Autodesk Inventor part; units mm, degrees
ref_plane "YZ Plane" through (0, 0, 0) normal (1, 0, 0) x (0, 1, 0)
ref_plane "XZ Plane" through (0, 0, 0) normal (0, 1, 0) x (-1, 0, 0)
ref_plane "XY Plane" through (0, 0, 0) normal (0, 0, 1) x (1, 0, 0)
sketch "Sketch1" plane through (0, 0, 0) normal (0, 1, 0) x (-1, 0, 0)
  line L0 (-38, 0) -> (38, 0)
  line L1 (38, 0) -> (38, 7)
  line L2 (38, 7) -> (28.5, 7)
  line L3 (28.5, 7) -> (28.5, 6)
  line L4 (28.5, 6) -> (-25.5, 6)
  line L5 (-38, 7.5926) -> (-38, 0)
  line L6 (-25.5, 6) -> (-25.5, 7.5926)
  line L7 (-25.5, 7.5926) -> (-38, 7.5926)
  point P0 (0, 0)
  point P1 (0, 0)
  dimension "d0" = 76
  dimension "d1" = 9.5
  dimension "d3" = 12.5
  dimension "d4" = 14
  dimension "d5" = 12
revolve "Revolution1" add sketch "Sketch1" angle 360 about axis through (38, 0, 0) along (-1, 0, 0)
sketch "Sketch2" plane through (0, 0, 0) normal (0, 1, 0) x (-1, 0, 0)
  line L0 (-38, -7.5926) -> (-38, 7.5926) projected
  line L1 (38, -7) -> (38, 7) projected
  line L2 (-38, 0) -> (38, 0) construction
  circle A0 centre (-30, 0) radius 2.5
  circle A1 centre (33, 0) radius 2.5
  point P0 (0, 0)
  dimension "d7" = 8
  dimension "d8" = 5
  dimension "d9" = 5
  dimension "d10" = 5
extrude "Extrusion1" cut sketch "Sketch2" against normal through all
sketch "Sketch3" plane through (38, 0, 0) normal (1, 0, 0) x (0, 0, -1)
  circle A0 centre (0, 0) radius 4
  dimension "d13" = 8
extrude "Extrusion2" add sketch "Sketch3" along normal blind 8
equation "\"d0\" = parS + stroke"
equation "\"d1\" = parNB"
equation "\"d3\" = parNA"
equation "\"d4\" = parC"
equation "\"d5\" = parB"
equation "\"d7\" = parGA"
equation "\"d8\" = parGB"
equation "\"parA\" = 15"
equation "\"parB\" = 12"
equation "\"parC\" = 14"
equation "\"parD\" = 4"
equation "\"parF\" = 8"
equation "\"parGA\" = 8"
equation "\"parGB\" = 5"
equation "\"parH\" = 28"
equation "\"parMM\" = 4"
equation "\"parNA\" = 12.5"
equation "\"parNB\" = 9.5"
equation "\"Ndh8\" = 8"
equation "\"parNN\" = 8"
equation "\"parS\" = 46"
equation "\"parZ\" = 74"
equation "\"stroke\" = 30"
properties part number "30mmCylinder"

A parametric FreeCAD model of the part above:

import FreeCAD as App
import Part
import Sketcher

V = App.Vector
Q = App.Units.Quantity

doc = App.newDocument("Part")
body = doc.addObject("PartDesign::Body", "Body")

# Sketch on XZ plane
sketch1 = body.newObject("Sketcher::SketchObject", "Sketch")
sketch1.AttachmentSupport = (doc.getObject("XZ_Plane"), [""])
sketch1.MapMode = "FlatFace"
sketch1.addGeometry([
    Part.LineSegment(V(38, 7.5926, 0), V(38, 0, 0)),  # 0
    Part.LineSegment(V(38, 0, 0), V(-38, 0, 0)),  # 1
    Part.LineSegment(V(-38, 0, 0), V(-38, 7, 0)),  # 2
    Part.LineSegment(V(-38, 7, 0), V(-28.5, 7, 0)),  # 3
    Part.LineSegment(V(-28.5, 7, 0), V(-28.5, 6, 0)),  # 4
    Part.LineSegment(V(-28.5, 6, 0), V(25.5, 6, 0)),  # 5
    Part.LineSegment(V(25.5, 6, 0), V(25.5, 7.5926, 0)),  # 6
    Part.LineSegment(V(25.5, 7.5926, 0), V(38, 7.5926, 0)),  # 7
], False)
sketch1.addConstraint([
    Sketcher.Constraint("Coincident", 0, 2, 1, 1),
    Sketcher.Constraint("Coincident", 1, 2, 2, 1),
    Sketcher.Constraint("Coincident", 2, 2, 3, 1),
    Sketcher.Constraint("Coincident", 3, 2, 4, 1),
    Sketcher.Constraint("Coincident", 4, 2, 5, 1),
    Sketcher.Constraint("Coincident", 5, 2, 6, 1),
    Sketcher.Constraint("Coincident", 6, 2, 7, 1),
    Sketcher.Constraint("Coincident", 7, 2, 0, 1),
    Sketcher.Constraint("Vertical", 0),
    Sketcher.Constraint("Horizontal", 1),
    Sketcher.Constraint("Vertical", 2),
    Sketcher.Constraint("Horizontal", 3),
    Sketcher.Constraint("Vertical", 4),
    Sketcher.Constraint("Horizontal", 5),
    Sketcher.Constraint("Vertical", 6),
    Sketcher.Constraint("Horizontal", 7),
    Sketcher.Constraint("Symmetric", 0, 2, 1, 2, -1, 1),
    Sketcher.Constraint("DistanceX", 1, 2, 1, 1, Q("76 mm")),
    Sketcher.Constraint("DistanceX", 3, 1, 3, 2, Q("9.5 mm")),
    Sketcher.Constraint("DistanceX", 7, 1, 7, 2, Q("12.5 mm")),
    Sketcher.Constraint("DistanceY", 2, 1, 2, 2, Q("7 mm")),
    Sketcher.Constraint("DistanceY", 4, 2, 4, 1, Q("1 mm")),
    Sketcher.Constraint("DistanceY", 0, 2, 0, 1, Q("7.5926 mm")),
])
revolution = body.newObject("PartDesign::Revolution", "Revolution")
revolution.Profile = sketch1
revolution.ReferenceAxis = (sketch1, ["H_Axis"])
revolution.Angle = 360

# Sketch on XZ plane
sketch2 = body.newObject("Sketcher::SketchObject", "Sketch001")
sketch2.AttachmentSupport = (doc.getObject("XZ_Plane"), [""])
sketch2.MapMode = "FlatFace"
sketch2.addGeometry([
    Part.Circle(V(30, 0, 0), V(0, 0, 1), 2.5),
    Part.Circle(V(-33, 0, 0), V(0, 0, 1), 2.5),
], False)
sketch2.addConstraint([
    Sketcher.Constraint("Equal", 0, 1),
    Sketcher.Constraint("PointOnObject", 0, 3, -1),
    Sketcher.Constraint("PointOnObject", 1, 3, -1),
    Sketcher.Constraint("Diameter", 0, Q("5 mm")),
    Sketcher.Constraint("DistanceX", -1, 1, 0, 3, Q("30 mm")),
    Sketcher.Constraint("DistanceX", 1, 3, -1, 1, Q("33 mm")),
])
pocket1 = body.newObject("PartDesign::Pocket", "Pocket")
pocket1.Profile = sketch2
pocket1.Type = "ThroughAll"
pocket1.Reversed = True

# Sketch on YZ plane
sketch3 = body.newObject("Sketcher::SketchObject", "Sketch002")
sketch3.AttachmentSupport = (doc.getObject("YZ_Plane"), [""])
sketch3.MapMode = "FlatFace"
sketch3.AttachmentOffset = App.Placement(V(0, 0, 38), App.Rotation())
sketch3.addGeometry(Part.Circle(V(0, 0, 0), V(0, 0, 1), 4), False)
sketch3.addConstraint([
    Sketcher.Constraint("Coincident", 0, 3, -1, 1),
    Sketcher.Constraint("Diameter", 0, Q("8 mm")),
])
pad1 = body.newObject("PartDesign::Pad", "Pad")
pad1.Profile = sketch3
pad1.Length = 8

doc.recompute()
